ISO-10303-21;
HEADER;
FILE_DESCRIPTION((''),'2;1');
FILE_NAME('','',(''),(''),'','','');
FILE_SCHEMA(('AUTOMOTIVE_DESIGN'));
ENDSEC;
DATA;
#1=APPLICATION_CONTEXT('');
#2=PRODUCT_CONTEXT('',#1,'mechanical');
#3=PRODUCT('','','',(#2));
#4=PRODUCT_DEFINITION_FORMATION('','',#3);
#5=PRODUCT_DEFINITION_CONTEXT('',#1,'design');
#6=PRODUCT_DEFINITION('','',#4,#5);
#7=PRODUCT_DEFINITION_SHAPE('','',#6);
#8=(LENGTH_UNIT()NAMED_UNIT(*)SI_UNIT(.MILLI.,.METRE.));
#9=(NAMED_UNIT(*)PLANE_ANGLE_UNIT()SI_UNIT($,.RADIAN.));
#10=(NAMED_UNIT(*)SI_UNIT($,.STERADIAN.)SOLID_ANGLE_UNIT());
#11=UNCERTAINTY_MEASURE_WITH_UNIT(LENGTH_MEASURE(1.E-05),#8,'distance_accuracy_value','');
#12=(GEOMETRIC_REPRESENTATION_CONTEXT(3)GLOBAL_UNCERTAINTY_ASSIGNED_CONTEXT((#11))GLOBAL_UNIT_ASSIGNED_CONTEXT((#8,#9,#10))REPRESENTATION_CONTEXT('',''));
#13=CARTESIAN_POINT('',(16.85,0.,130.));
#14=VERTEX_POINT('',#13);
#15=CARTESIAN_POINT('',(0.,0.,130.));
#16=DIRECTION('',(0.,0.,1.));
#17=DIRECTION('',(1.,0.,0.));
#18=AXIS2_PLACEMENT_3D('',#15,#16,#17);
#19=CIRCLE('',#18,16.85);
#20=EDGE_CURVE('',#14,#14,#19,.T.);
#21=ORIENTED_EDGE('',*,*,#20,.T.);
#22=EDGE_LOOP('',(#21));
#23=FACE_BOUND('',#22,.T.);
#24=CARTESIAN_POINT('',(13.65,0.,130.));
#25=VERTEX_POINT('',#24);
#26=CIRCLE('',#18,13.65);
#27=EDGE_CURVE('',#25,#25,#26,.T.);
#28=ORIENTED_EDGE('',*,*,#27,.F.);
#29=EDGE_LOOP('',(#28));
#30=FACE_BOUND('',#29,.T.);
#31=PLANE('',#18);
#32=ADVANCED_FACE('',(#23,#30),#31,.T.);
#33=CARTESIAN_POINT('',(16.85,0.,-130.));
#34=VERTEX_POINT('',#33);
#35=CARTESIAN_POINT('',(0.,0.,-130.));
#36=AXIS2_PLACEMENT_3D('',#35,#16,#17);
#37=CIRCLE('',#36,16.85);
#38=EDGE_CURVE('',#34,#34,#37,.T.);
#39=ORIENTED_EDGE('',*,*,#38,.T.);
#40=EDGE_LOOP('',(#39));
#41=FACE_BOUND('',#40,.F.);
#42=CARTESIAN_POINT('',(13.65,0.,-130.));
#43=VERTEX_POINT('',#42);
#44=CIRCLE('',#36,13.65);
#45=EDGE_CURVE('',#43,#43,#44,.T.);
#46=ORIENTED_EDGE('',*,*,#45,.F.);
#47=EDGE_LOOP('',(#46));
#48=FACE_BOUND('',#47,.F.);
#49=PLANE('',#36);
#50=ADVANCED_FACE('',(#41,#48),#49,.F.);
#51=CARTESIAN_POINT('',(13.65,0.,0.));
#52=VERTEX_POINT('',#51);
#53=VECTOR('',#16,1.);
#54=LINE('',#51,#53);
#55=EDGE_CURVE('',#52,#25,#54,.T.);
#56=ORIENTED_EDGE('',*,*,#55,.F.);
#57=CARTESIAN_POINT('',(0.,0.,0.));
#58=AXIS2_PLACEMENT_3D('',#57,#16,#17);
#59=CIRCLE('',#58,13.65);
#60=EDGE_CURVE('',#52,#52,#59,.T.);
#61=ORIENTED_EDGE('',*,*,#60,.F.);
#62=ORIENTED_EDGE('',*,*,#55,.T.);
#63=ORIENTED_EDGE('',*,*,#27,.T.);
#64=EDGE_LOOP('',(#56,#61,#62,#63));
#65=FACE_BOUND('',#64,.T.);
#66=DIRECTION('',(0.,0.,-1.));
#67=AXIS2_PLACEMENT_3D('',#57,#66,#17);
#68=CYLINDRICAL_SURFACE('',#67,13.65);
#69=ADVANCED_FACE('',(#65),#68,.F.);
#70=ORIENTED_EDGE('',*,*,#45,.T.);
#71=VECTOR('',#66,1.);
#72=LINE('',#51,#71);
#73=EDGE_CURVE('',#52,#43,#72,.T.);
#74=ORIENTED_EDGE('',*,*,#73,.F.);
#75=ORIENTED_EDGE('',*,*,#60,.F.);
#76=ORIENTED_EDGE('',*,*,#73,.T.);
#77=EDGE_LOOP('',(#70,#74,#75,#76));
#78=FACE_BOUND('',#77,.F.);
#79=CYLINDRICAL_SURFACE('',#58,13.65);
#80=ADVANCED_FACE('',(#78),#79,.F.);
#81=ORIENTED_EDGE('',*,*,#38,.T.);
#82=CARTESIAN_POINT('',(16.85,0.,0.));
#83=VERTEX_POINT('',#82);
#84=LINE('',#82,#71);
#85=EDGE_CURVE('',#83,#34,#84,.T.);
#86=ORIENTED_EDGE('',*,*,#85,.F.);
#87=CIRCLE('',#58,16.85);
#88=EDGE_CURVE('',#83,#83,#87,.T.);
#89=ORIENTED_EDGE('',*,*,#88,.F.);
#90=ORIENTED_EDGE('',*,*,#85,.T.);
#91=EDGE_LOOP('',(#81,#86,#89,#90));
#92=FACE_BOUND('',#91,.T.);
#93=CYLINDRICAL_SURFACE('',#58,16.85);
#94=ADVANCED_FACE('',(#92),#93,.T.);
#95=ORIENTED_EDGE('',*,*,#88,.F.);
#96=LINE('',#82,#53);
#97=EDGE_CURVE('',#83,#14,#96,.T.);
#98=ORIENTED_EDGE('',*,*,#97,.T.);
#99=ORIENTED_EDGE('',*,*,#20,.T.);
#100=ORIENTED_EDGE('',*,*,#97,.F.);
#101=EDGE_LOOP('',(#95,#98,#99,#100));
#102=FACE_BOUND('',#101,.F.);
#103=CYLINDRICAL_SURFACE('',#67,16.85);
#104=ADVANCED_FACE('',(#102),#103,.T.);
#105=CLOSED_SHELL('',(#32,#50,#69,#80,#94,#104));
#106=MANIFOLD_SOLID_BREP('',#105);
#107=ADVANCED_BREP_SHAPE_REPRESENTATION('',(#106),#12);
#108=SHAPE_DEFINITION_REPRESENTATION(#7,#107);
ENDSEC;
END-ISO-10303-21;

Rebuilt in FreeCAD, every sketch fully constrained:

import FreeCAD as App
import Part
import Sketcher

V = App.Vector
Q = App.Units.Quantity

doc = App.newDocument("Part")
body = doc.addObject("PartDesign::Body", "Body")

sketch1 = doc.addObject("Sketcher::SketchObject", "Sketch")
body.addObject(sketch1)
sketch1.AttachmentSupport = (doc.XY_Plane, [""])
sketch1.MapMode = "FlatFace"
sketch1.addGeometry([
    Part.Circle(V(0, 0, 0), V(0, 0, 1), 16.85),
    Part.Circle(V(0, 0, 0), V(0, 0, 1), 13.65),
], False)
sketch1.addConstraint([
    Sketcher.Constraint("Coincident", 0, 3, -1, 1),
    Sketcher.Constraint("Coincident", 1, 3, -1, 1),
    Sketcher.Constraint("Diameter", 0, Q("33.7 mm")),
    Sketcher.Constraint("Diameter", 1, Q("27.3 mm")),
])
pad1 = doc.addObject("PartDesign::Pad", "Pad")
body.addObject(pad1)
pad1.Profile = sketch1
pad1.Length = 260
pad1.Midplane = True

doc.recompute()
